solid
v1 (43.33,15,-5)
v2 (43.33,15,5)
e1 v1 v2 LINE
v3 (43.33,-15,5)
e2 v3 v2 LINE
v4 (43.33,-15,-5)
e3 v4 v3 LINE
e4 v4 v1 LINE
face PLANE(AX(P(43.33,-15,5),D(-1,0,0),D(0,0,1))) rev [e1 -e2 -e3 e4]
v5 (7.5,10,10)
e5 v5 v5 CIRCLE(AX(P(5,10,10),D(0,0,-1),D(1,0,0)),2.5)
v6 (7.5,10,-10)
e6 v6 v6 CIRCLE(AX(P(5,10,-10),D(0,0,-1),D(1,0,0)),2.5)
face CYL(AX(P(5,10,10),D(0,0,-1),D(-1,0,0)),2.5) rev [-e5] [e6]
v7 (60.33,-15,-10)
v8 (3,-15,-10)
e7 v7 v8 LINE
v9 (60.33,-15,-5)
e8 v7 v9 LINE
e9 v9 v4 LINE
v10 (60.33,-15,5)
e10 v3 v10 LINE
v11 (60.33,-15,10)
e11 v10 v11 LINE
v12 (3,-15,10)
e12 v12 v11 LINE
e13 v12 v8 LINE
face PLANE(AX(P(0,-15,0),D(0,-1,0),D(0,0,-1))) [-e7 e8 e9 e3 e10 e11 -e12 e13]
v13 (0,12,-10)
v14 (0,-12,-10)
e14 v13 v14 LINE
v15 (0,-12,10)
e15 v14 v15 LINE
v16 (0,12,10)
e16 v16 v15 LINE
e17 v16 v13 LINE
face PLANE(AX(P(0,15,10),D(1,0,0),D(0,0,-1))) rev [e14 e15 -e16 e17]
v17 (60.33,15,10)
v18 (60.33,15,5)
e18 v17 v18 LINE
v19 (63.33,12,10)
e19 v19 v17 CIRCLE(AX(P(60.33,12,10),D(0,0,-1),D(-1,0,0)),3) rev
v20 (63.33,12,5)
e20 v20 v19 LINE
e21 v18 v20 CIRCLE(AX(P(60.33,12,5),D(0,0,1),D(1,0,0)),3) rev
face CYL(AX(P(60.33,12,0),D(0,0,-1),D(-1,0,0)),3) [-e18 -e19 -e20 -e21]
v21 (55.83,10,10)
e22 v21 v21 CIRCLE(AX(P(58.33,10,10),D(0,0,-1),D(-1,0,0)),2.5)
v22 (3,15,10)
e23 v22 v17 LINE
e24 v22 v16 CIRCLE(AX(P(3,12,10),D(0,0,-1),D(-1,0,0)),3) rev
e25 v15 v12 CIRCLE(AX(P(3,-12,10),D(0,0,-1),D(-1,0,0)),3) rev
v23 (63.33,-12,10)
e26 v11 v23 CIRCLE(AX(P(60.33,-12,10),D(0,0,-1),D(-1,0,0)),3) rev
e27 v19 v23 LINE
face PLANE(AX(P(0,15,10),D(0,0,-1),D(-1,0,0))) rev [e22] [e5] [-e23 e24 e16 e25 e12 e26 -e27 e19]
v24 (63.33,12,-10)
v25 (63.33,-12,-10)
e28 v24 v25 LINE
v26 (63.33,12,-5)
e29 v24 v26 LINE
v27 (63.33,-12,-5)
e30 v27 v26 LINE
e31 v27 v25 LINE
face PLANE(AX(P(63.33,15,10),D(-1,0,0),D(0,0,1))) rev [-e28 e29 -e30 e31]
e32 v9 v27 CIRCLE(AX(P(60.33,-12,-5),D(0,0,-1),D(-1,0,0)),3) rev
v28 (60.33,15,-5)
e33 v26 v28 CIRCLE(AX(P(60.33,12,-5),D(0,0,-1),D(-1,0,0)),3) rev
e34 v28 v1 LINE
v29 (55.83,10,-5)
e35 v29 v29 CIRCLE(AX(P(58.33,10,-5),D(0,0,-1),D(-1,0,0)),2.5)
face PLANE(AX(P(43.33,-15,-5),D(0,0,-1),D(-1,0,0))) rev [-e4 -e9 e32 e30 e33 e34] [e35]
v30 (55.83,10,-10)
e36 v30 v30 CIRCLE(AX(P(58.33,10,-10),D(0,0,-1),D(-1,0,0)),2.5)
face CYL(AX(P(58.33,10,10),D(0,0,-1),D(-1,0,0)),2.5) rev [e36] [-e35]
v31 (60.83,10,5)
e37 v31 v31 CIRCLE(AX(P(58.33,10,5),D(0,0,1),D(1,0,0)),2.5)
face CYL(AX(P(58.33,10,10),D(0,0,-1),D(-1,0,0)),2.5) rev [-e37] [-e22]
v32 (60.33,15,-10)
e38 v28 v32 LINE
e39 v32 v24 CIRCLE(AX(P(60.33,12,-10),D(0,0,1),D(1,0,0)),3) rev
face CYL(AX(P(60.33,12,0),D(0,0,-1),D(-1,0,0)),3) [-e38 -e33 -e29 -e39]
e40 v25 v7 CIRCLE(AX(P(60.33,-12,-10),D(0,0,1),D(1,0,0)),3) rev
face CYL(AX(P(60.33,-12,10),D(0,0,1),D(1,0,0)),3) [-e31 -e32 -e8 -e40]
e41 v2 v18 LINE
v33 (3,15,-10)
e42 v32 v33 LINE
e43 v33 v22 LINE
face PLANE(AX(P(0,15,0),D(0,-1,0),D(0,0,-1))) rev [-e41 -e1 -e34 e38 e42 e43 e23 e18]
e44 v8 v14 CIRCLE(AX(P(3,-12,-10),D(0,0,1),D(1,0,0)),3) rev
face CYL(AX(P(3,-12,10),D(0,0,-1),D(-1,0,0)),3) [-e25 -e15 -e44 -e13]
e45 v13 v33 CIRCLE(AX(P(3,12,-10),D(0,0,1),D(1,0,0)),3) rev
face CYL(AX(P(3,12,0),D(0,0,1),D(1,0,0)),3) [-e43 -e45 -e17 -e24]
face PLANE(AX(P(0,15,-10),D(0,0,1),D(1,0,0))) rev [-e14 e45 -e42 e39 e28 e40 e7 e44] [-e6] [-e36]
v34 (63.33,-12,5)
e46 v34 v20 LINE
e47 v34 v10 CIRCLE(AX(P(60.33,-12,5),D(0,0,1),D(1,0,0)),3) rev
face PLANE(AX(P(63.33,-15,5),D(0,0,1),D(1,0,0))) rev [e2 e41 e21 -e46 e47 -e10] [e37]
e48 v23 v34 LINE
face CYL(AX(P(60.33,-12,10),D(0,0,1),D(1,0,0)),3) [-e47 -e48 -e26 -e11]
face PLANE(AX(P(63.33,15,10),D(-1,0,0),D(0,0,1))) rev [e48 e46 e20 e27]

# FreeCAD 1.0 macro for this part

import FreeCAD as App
import Part
import Sketcher
Q = App.Units.Quantity


def edges_at(feature, points):
    """Names of the edges that pass closest to the given points."""
    edges = feature.Shape.Edges
    near = lambda p: min(range(len(edges)), key=lambda i: edges[i].distToShape(Part.Vertex(*p))[0])
    return sorted({f"Edge{near(p) + 1}" for p in points})


def add_polygon(sketch, points):
    """Adds a closed chain of lines whose ends are joined by coincident constraints."""
    first, n = sketch.GeometryCount, len(points)
    for a, b in zip(points, points[1:] + points[:1]):
        sketch.addGeometry(Part.LineSegment(App.Vector(*a, 0), App.Vector(*b, 0)), False)
    for i in range(n):
        sketch.addConstraint(Sketcher.Constraint("Coincident", first + i, 2, first + (i + 1) % n, 1))

doc = App.newDocument("Part")
body = doc.addObject("PartDesign::Body", "Body")

sketch1 = body.newObject("Sketcher::SketchObject", "Sketch")
sketch1.AttachmentSupport = (doc.getObject("XZ_Plane"), [""])
sketch1.MapMode = "FlatFace"
add_polygon(sketch1, [(0, -10), (0, 10), (63, 10), (63, -10)])
sketch1.addConstraint(Sketcher.Constraint("Vertical", 0))
sketch1.addConstraint(Sketcher.Constraint("Horizontal", 1))
sketch1.addConstraint(Sketcher.Constraint("Vertical", 2))
sketch1.addConstraint(Sketcher.Constraint("Horizontal", 3))
sketch1.addConstraint(Sketcher.Constraint("Symmetric", 0, 2, 3, 2, -1, 1))
sketch1.addConstraint(Sketcher.Constraint("DistanceY", 0, 1, 0, 2, Q("20 mm")))
sketch1.addConstraint(Sketcher.Constraint("DistanceX", 1, 1, 1, 2, Q("63.33 mm")))
pad1 = body.newObject("PartDesign::Pad", "Pad")
pad1.Profile = sketch1
pad1.Length = 30
pad1.Midplane = True
doc.recompute()

fillet = body.newObject("PartDesign::Fillet", "Fillet")
fillet.Base = (pad1, edges_at(pad1, [
    (63.33, 15, 0),
    (0, 15, 0),
    (63.33, -15, 0),
    (0, -15, 0),
]))
fillet.Radius = 3

sketch2 = body.newObject("Sketcher::SketchObject", "Sketch001")
sketch2.AttachmentSupport = (doc.getObject("XZ_Plane"), [""])
sketch2.MapMode = "FlatFace"
sketch2.AttachmentOffset = App.Placement(App.Vector(0, 0, -15), App.Rotation())
add_polygon(sketch2, [(43, -5), (43, 5), (63, 5), (63, -5)])
sketch2.addConstraint(Sketcher.Constraint("Vertical", 0))
sketch2.addConstraint(Sketcher.Constraint("Horizontal", 1))
sketch2.addConstraint(Sketcher.Constraint("Vertical", 2))
sketch2.addConstraint(Sketcher.Constraint("Horizontal", 3))
sketch2.addConstraint(Sketcher.Constraint("DistanceX", 1, 1, 1, 2, Q("20 mm")))
sketch2.addConstraint(Sketcher.Constraint("DistanceY", 0, 1, 0, 2, Q("10 mm")))
sketch2.addConstraint(Sketcher.Constraint("DistanceY", -1, 1, 0, 2, Q("5 mm")))
sketch2.addConstraint(Sketcher.Constraint("DistanceX", -1, 1, 0, 2, Q("43.33 mm")))
pocket1 = body.newObject("PartDesign::Pocket", "Pocket")
pocket1.Profile = sketch2
pocket1.Type = "ThroughAll"
pocket1.Reversed = True

sketch3 = body.newObject("Sketcher::SketchObject", "Sketch002")
sketch3.AttachmentSupport = (doc.getObject("XY_Plane"), [""])
sketch3.MapMode = "FlatFace"
sketch3.AttachmentOffset = App.Placement(App.Vector(0, 0, -10), App.Rotation())
sketch3.addGeometry(Part.Circle(App.Vector(58.3, 10, 0), App.Vector(0, 0, 1), 2.5), False)
sketch3.addGeometry(Part.Circle(App.Vector(5, 10, 0), App.Vector(0, 0, 1), 2.5), False)
sketch3.addConstraint(Sketcher.Constraint("Equal", 0, 1))
sketch3.addConstraint(Sketcher.Constraint("Horizontal", 0, 3, 1, 3))
sketch3.addConstraint(Sketcher.Constraint("Diameter", 0, Q("5 mm")))
sketch3.addConstraint(Sketcher.Constraint("DistanceY", -1, 1, 0, 3, Q("10 mm")))
sketch3.addConstraint(Sketcher.Constraint("DistanceX", -1, 1, 1, 3, Q("5 mm")))
sketch3.addConstraint(Sketcher.Constraint("DistanceX", -1, 1, 0, 3, Q("58.33 mm")))
pocket2 = body.newObject("PartDesign::Pocket", "Pocket001")
pocket2.Profile = sketch3
pocket2.Type = "ThroughAll"
pocket2.Reversed = True

doc.recompute()
